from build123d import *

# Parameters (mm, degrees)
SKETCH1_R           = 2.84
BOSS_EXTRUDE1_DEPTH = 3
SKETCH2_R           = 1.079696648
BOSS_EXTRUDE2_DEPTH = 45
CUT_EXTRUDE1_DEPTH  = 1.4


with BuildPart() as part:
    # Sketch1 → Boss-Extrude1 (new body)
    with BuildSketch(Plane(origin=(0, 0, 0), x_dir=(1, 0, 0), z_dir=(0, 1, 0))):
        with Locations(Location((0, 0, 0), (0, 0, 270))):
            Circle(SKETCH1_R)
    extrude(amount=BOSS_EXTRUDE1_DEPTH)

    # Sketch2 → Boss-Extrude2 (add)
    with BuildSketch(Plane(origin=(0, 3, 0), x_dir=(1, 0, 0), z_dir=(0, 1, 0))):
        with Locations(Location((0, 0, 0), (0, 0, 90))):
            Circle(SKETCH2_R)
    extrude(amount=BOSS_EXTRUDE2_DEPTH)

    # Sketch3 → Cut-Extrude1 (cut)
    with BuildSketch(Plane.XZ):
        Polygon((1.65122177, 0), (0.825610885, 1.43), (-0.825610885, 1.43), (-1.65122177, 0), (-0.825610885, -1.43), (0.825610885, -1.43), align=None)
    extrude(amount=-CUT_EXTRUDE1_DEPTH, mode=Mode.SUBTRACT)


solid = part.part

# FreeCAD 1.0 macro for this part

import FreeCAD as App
import Part
import Sketcher

V = App.Vector
Q = App.Units.Quantity

doc = App.newDocument("Part")
body = doc.addObject("PartDesign::Body", "Body")

sketch1 = body.newObject("Sketcher::SketchObject", "Sketch")
sketch1.AttachmentSupport = (doc.getObject("XZ_Plane"), [""])
sketch1.MapMode = "FlatFace"
sketch1.addGeometry(Part.Circle(V(0, 0, 0), V(0, 0, 1), 2.84), False)
sketch1.addConstraint(Sketcher.Constraint("Coincident", 0, 3, -1, 1))
sketch1.addConstraint(Sketcher.Constraint("Diameter", 0, Q("5.68 mm")))
pad1 = body.newObject("PartDesign::Pad", "Pad")
pad1.Profile = sketch1
pad1.Length = 3
pad1.Reversed = True

sketch2 = body.newObject("Sketcher::SketchObject", "Sketch001")
sketch2.AttachmentSupport = (doc.getObject("XZ_Plane"), [""])
sketch2.MapMode = "FlatFace"
sketch2.AttachmentOffset = App.Placement(V(0, 0, -3), App.Rotation())
sketch2.addGeometry(Part.Circle(V(0, 0, 0), V(0, 0, 1), 1.079697), False)
sketch2.addConstraint(Sketcher.Constraint("Coincident", 0, 3, -1, 1))
sketch2.addConstraint(Sketcher.Constraint("Diameter", 0, Q("2.159393 mm")))
pad2 = body.newObject("PartDesign::Pad", "Pad001")
pad2.Profile = sketch2
pad2.Length = 45
pad2.Reversed = True

sketch3 = body.newObject("Sketcher::SketchObject", "Sketch002")
sketch3.AttachmentSupport = (doc.getObject("XZ_Plane"), [""])
sketch3.MapMode = "FlatFace"
sketch3.addGeometry(Part.LineSegment(V(1.651222, 0, 0), V(0.825611, 1.43, 0)), False)
sketch3.addGeometry(Part.LineSegment(V(0.825611, 1.43, 0), V(-0.825611, 1.43, 0)), False)
sketch3.addGeometry(Part.LineSegment(V(-0.825611, 1.43, 0), V(-1.651222, 0, 0)), False)
sketch3.addGeometry(Part.LineSegment(V(-1.651222, 0, 0), V(-0.825611, -1.43, 0)), False)
sketch3.addGeometry(Part.LineSegment(V(-0.825611, -1.43, 0), V(0.825611, -1.43, 0)), False)
sketch3.addGeometry(Part.LineSegment(V(0.825611, -1.43, 0), V(1.651222, 0, 0)), False)
sketch3.addConstraint(Sketcher.Constraint("Coincident", 0, 2, 1, 1))
sketch3.addConstraint(Sketcher.Constraint("Coincident", 1, 2, 2, 1))
sketch3.addConstraint(Sketcher.Constraint("Coincident", 2, 2, 3, 1))
sketch3.addConstraint(Sketcher.Constraint("Coincident", 3, 2, 4, 1))
sketch3.addConstraint(Sketcher.Constraint("Coincident", 4, 2, 5, 1))
sketch3.addConstraint(Sketcher.Constraint("Coincident", 5, 2, 0, 1))
sketch3.addConstraint(Sketcher.Constraint("Horizontal", 1))
sketch3.addConstraint(Sketcher.Constraint("Horizontal", 4))
sketch3.addConstraint(Sketcher.Constraint("Symmetric", 0, 2, 3, 2, -1, 1))
sketch3.addConstraint(Sketcher.Constraint("Symmetric", 2, 2, 5, 2, -1, 1))
sketch3.addConstraint(Sketcher.Constraint("PointOnObject", 2, 2, -1))
sketch3.addConstraint(Sketcher.Constraint("Parallel", 2, 5))
sketch3.addConstraint(Sketcher.Constraint("Vertical", 1, 2, 3, 2))
sketch3.addConstraint(Sketcher.Constraint("Angle", 0, Q("120 deg")))
sketch3.addConstraint(Sketcher.Constraint("DistanceY", -1, 1, 0, 2, Q("1.43 mm")))
sketch3.addConstraint(Sketcher.Constraint("DistanceX", 1, 2, 1, 1, Q("1.651222 mm")))
pocket1 = body.newObject("PartDesign::Pocket", "Pocket")
pocket1.Profile = sketch3
pocket1.Length = 1.4

doc.recompute()
